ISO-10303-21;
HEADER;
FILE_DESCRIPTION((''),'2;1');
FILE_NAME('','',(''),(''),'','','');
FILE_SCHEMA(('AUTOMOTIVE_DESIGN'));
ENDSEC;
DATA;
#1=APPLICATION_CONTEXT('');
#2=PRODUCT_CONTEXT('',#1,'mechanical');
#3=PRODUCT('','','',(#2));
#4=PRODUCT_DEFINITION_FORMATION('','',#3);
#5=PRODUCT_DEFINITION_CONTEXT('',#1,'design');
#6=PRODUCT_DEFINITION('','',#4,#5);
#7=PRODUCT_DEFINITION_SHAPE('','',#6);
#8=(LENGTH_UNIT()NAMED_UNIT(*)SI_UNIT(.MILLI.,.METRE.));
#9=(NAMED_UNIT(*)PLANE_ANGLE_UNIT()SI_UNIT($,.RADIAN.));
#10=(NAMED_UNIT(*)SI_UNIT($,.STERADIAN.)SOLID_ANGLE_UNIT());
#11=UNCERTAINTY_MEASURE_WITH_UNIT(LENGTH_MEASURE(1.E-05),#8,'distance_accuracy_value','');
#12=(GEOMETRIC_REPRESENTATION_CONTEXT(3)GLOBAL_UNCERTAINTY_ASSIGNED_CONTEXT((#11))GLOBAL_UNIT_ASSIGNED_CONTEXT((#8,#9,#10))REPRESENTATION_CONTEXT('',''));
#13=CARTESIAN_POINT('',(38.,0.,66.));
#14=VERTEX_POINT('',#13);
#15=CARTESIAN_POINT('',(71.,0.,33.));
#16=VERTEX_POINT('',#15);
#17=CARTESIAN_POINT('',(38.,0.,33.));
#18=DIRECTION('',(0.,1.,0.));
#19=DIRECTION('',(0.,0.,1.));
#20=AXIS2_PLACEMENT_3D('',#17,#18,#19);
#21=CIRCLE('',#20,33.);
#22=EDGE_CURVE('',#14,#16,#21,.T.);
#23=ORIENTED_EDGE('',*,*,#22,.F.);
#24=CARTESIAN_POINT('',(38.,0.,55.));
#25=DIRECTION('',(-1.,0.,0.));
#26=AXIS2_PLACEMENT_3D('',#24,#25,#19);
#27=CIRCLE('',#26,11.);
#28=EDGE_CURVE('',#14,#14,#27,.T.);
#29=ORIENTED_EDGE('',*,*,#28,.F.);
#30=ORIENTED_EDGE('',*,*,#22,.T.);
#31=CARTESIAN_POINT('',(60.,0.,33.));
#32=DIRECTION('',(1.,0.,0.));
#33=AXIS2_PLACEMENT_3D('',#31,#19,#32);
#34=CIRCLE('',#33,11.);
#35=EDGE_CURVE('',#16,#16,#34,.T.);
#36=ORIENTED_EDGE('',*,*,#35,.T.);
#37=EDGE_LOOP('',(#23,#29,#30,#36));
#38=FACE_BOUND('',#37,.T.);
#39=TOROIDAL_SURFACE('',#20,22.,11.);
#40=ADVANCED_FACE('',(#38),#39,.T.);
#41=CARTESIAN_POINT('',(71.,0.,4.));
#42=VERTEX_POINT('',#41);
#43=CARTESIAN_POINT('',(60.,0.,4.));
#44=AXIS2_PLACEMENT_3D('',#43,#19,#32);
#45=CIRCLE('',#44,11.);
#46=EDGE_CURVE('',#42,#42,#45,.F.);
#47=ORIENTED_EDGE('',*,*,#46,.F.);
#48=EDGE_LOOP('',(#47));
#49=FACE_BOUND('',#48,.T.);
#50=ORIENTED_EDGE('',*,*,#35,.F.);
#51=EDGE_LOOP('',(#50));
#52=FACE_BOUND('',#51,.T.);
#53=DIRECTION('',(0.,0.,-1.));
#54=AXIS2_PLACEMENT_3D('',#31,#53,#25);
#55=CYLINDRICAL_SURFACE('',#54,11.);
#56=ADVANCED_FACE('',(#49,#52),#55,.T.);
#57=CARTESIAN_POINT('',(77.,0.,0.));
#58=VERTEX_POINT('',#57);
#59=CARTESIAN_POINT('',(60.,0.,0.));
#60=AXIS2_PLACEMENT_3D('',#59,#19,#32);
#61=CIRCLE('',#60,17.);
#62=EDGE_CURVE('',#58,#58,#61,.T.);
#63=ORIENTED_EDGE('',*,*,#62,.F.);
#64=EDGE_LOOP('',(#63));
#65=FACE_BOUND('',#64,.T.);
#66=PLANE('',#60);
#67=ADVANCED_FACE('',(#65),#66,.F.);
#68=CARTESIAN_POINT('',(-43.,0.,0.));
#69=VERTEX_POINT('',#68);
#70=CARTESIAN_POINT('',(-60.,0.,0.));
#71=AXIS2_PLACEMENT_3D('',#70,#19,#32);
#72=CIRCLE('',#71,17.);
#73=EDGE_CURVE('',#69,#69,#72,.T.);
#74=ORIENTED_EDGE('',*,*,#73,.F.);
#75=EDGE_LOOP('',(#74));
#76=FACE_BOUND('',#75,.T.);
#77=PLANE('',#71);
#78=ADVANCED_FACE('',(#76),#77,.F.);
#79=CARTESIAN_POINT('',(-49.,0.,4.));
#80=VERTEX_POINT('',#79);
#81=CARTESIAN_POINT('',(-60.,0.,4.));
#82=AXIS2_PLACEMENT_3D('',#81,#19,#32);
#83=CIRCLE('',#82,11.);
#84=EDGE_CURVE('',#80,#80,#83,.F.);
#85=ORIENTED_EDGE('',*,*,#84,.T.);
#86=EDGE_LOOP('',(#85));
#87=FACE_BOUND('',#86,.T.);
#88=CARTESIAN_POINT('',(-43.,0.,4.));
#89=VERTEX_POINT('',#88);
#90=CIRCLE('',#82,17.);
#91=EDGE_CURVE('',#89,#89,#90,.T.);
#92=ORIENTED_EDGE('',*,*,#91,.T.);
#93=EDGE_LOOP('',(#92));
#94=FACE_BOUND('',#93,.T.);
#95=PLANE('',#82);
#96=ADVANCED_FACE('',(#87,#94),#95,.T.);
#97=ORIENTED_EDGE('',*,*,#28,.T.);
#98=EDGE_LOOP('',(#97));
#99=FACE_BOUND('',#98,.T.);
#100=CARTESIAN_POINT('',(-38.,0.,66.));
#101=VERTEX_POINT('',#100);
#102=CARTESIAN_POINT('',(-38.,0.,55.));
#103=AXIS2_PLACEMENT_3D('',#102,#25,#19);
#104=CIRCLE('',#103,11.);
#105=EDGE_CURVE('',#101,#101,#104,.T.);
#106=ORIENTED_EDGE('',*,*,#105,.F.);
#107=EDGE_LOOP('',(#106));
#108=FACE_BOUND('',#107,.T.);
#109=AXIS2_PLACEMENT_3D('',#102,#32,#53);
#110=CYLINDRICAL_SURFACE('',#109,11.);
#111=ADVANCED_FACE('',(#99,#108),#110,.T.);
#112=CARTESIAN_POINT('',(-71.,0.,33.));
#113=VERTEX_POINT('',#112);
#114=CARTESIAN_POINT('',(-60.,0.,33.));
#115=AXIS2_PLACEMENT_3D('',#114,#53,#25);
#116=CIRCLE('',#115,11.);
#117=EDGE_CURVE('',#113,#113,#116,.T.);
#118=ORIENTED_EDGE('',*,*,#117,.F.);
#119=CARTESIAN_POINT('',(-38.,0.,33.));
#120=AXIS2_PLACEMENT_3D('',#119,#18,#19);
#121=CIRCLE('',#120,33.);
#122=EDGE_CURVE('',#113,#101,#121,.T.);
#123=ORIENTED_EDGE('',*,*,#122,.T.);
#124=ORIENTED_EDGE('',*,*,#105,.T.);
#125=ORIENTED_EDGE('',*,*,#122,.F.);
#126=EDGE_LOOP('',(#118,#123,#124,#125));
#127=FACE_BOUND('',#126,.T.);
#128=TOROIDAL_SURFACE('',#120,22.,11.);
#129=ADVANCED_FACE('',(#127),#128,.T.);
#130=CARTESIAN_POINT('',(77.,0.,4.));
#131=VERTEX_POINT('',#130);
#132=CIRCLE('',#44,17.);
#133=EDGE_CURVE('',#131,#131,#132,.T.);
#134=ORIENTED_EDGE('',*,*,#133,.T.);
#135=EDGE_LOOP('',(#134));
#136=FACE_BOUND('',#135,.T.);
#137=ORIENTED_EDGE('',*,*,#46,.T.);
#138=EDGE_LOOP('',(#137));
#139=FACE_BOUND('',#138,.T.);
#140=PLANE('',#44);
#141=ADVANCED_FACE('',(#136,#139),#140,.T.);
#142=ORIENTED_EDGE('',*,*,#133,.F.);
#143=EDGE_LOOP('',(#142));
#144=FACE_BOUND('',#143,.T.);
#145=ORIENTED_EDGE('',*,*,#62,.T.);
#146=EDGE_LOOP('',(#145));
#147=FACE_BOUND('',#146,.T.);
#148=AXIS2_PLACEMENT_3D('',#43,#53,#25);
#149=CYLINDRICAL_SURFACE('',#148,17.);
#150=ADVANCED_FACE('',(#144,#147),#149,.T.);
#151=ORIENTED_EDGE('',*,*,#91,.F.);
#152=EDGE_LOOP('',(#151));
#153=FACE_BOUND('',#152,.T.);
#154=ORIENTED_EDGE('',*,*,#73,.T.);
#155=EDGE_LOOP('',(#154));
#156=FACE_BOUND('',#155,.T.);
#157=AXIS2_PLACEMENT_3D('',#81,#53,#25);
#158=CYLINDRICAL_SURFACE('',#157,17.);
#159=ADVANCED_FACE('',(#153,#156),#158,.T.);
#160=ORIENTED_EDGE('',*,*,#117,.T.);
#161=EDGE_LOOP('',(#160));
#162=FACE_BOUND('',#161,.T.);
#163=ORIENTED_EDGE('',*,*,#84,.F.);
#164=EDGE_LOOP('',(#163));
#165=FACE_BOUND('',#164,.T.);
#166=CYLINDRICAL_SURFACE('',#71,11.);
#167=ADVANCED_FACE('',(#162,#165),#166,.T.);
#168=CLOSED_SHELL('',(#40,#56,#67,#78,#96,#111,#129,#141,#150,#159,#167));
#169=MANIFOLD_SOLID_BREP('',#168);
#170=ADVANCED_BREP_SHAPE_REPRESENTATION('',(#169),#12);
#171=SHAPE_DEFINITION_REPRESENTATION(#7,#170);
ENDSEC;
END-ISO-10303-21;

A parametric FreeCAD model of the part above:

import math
import FreeCAD as App
import Part
import Sketcher
from FreeCAD import Vector

doc = App.newDocument("Part")
params = doc.addObject("Spreadsheet::Sheet", "Params")
for row, (alias, value) in enumerate([
    ("sketch1_diameter", "22 mm"),
    ("sketch2_radius", "22 mm"),
    ("sketch2_width", "76 mm"),
    ("sketch2_height", "33 mm"),
    ("sketch3_diameter", "34 mm"),
    ("pad1_length", "4 mm"),
    ("sketch4_diameter", "34 mm"),
    ("pad2_length", "4 mm"),
], start=1):
    params.set(f"A{row}", alias)
    params.set(f"B{row}", "=" + value)
    params.setAlias(f"B{row}", alias)

body = doc.addObject("PartDesign::Body", "Body")

# Sketch on XY plane
sketch1 = body.newObject("Sketcher::SketchObject", "Sketch")
sketch1.AttachmentSupport = (doc.getObject("XY_Plane"), [""])
sketch1.MapMode = "FlatFace"
sketch1.addGeometry(Part.Circle(Vector(-60, 0, 0), Vector(0, 0, 1), 11), False)
sketch1.addConstraint(Sketcher.Constraint("PointOnObject", 0, 3, -1))
sketch1.addConstraint(Sketcher.Constraint("Diameter", 0, 22.0))
sketch1.addConstraint(Sketcher.Constraint("DistanceX", 0, 3, -1, 1, 60.0))
sketch1.setExpression("Constraints[1]", "Params.sketch1_diameter")

# Sketch on XZ plane
sketch2 = body.newObject("Sketcher::SketchObject", "Sketch001")
sketch2.AttachmentSupport = (doc.getObject("XZ_Plane"), [""])
sketch2.MapMode = "FlatFace"
sketch2.addGeometry(Part.LineSegment(Vector(-60, 0, 0), Vector(-60, 33, 0)), False)
sketch2.addGeometry(Part.ArcOfCircle(Part.Circle(Vector(-38, 33, 0), Vector(0, 0, 1), 22), math.radians(90), math.radians(180)), False)
sketch2.addGeometry(Part.LineSegment(Vector(-38, 55, 0), Vector(38, 55, 0)), False)
sketch2.addGeometry(Part.ArcOfCircle(Part.Circle(Vector(38, 33, 0), Vector(0, 0, 1), 22), math.radians(0), math.radians(90)), False)
sketch2.addGeometry(Part.LineSegment(Vector(60, 33, 0), Vector(60, 0, 0)), False)
sketch2.addConstraint(Sketcher.Constraint("Tangent", 0, 2, 1, 2))
sketch2.addConstraint(Sketcher.Constraint("Tangent", 1, 1, 2, 1))
sketch2.addConstraint(Sketcher.Constraint("Tangent", 2, 2, 3, 2))
sketch2.addConstraint(Sketcher.Constraint("Tangent", 3, 1, 4, 1))
sketch2.addConstraint(Sketcher.Constraint("Vertical", 0))
sketch2.addConstraint(Sketcher.Constraint("Horizontal", 2))
sketch2.addConstraint(Sketcher.Constraint("Vertical", 4))
sketch2.addConstraint(Sketcher.Constraint("Equal", 1, 3))
sketch2.addConstraint(Sketcher.Constraint("Symmetric", 0, 1, 4, 2, -1, 1))
sketch2.addConstraint(Sketcher.Constraint("PointOnObject", 0, 1, -1))
sketch2.addConstraint(Sketcher.Constraint("Radius", 1, 22.0))
sketch2.addConstraint(Sketcher.Constraint("DistanceX", 2, 1, 2, 2, 76.0))
sketch2.addConstraint(Sketcher.Constraint("DistanceY", 0, 1, 0, 2, 33.0))
sketch2.setExpression("Constraints[10]", "Params.sketch2_radius")
sketch2.setExpression("Constraints[11]", "Params.sketch2_width")
sketch2.setExpression("Constraints[12]", "Params.sketch2_height")
doc.recompute()

additivepipe = body.newObject("PartDesign::AdditivePipe", "AdditivePipe")
additivepipe.Profile = sketch1
additivepipe.Spine = (sketch2, ["Edge1", "Edge2", "Edge3", "Edge4", "Edge5"])
body2 = doc.addObject("PartDesign::Body", "Body001")

# Sketch on XY plane
sketch3 = body2.newObject("Sketcher::SketchObject", "Sketch002")
sketch3.AttachmentSupport = (doc.getObject("XY_Plane001"), [""])
sketch3.MapMode = "FlatFace"
sketch3.addGeometry(Part.Circle(Vector(-60, 0, 0), Vector(0, 0, 1), 17), False)
sketch3.addConstraint(Sketcher.Constraint("PointOnObject", 0, 3, -1))
sketch3.addConstraint(Sketcher.Constraint("Diameter", 0, 34.0))
sketch3.addConstraint(Sketcher.Constraint("DistanceX", 0, 3, -1, 1, 60.0))
sketch3.setExpression("Constraints[1]", "Params.sketch3_diameter")
pad1 = body2.newObject("PartDesign::Pad", "Pad")
pad1.Profile = sketch3
pad1.setExpression("Length", "Params.pad1_length")
body3 = doc.addObject("PartDesign::Body", "Body002")

# Sketch on XY plane
sketch4 = body3.newObject("Sketcher::SketchObject", "Sketch003")
sketch4.AttachmentSupport = (doc.getObject("XY_Plane002"), [""])
sketch4.MapMode = "FlatFace"
sketch4.addGeometry(Part.Circle(Vector(60, 0, 0), Vector(0, 0, 1), 17), False)
sketch4.addConstraint(Sketcher.Constraint("PointOnObject", 0, 3, -1))
sketch4.addConstraint(Sketcher.Constraint("Diameter", 0, 34.0))
sketch4.addConstraint(Sketcher.Constraint("DistanceX", -1, 1, 0, 3, 60.0))
sketch4.setExpression("Constraints[1]", "Params.sketch4_diameter")
pad2 = body3.newObject("PartDesign::Pad", "Pad001")
pad2.Profile = sketch4
pad2.setExpression("Length", "Params.pad2_length")
body2.AllowCompound = True
doc.recompute()

boolean = body2.newObject("PartDesign::Boolean", "Boolean")
boolean.Type = "Fuse"
boolean.addObjects([body3])
doc.recompute()

boolean2 = body2.newObject("PartDesign::Boolean", "Boolean001")
boolean2.Type = "Fuse"
boolean2.addObjects([body])

doc.recompute()
